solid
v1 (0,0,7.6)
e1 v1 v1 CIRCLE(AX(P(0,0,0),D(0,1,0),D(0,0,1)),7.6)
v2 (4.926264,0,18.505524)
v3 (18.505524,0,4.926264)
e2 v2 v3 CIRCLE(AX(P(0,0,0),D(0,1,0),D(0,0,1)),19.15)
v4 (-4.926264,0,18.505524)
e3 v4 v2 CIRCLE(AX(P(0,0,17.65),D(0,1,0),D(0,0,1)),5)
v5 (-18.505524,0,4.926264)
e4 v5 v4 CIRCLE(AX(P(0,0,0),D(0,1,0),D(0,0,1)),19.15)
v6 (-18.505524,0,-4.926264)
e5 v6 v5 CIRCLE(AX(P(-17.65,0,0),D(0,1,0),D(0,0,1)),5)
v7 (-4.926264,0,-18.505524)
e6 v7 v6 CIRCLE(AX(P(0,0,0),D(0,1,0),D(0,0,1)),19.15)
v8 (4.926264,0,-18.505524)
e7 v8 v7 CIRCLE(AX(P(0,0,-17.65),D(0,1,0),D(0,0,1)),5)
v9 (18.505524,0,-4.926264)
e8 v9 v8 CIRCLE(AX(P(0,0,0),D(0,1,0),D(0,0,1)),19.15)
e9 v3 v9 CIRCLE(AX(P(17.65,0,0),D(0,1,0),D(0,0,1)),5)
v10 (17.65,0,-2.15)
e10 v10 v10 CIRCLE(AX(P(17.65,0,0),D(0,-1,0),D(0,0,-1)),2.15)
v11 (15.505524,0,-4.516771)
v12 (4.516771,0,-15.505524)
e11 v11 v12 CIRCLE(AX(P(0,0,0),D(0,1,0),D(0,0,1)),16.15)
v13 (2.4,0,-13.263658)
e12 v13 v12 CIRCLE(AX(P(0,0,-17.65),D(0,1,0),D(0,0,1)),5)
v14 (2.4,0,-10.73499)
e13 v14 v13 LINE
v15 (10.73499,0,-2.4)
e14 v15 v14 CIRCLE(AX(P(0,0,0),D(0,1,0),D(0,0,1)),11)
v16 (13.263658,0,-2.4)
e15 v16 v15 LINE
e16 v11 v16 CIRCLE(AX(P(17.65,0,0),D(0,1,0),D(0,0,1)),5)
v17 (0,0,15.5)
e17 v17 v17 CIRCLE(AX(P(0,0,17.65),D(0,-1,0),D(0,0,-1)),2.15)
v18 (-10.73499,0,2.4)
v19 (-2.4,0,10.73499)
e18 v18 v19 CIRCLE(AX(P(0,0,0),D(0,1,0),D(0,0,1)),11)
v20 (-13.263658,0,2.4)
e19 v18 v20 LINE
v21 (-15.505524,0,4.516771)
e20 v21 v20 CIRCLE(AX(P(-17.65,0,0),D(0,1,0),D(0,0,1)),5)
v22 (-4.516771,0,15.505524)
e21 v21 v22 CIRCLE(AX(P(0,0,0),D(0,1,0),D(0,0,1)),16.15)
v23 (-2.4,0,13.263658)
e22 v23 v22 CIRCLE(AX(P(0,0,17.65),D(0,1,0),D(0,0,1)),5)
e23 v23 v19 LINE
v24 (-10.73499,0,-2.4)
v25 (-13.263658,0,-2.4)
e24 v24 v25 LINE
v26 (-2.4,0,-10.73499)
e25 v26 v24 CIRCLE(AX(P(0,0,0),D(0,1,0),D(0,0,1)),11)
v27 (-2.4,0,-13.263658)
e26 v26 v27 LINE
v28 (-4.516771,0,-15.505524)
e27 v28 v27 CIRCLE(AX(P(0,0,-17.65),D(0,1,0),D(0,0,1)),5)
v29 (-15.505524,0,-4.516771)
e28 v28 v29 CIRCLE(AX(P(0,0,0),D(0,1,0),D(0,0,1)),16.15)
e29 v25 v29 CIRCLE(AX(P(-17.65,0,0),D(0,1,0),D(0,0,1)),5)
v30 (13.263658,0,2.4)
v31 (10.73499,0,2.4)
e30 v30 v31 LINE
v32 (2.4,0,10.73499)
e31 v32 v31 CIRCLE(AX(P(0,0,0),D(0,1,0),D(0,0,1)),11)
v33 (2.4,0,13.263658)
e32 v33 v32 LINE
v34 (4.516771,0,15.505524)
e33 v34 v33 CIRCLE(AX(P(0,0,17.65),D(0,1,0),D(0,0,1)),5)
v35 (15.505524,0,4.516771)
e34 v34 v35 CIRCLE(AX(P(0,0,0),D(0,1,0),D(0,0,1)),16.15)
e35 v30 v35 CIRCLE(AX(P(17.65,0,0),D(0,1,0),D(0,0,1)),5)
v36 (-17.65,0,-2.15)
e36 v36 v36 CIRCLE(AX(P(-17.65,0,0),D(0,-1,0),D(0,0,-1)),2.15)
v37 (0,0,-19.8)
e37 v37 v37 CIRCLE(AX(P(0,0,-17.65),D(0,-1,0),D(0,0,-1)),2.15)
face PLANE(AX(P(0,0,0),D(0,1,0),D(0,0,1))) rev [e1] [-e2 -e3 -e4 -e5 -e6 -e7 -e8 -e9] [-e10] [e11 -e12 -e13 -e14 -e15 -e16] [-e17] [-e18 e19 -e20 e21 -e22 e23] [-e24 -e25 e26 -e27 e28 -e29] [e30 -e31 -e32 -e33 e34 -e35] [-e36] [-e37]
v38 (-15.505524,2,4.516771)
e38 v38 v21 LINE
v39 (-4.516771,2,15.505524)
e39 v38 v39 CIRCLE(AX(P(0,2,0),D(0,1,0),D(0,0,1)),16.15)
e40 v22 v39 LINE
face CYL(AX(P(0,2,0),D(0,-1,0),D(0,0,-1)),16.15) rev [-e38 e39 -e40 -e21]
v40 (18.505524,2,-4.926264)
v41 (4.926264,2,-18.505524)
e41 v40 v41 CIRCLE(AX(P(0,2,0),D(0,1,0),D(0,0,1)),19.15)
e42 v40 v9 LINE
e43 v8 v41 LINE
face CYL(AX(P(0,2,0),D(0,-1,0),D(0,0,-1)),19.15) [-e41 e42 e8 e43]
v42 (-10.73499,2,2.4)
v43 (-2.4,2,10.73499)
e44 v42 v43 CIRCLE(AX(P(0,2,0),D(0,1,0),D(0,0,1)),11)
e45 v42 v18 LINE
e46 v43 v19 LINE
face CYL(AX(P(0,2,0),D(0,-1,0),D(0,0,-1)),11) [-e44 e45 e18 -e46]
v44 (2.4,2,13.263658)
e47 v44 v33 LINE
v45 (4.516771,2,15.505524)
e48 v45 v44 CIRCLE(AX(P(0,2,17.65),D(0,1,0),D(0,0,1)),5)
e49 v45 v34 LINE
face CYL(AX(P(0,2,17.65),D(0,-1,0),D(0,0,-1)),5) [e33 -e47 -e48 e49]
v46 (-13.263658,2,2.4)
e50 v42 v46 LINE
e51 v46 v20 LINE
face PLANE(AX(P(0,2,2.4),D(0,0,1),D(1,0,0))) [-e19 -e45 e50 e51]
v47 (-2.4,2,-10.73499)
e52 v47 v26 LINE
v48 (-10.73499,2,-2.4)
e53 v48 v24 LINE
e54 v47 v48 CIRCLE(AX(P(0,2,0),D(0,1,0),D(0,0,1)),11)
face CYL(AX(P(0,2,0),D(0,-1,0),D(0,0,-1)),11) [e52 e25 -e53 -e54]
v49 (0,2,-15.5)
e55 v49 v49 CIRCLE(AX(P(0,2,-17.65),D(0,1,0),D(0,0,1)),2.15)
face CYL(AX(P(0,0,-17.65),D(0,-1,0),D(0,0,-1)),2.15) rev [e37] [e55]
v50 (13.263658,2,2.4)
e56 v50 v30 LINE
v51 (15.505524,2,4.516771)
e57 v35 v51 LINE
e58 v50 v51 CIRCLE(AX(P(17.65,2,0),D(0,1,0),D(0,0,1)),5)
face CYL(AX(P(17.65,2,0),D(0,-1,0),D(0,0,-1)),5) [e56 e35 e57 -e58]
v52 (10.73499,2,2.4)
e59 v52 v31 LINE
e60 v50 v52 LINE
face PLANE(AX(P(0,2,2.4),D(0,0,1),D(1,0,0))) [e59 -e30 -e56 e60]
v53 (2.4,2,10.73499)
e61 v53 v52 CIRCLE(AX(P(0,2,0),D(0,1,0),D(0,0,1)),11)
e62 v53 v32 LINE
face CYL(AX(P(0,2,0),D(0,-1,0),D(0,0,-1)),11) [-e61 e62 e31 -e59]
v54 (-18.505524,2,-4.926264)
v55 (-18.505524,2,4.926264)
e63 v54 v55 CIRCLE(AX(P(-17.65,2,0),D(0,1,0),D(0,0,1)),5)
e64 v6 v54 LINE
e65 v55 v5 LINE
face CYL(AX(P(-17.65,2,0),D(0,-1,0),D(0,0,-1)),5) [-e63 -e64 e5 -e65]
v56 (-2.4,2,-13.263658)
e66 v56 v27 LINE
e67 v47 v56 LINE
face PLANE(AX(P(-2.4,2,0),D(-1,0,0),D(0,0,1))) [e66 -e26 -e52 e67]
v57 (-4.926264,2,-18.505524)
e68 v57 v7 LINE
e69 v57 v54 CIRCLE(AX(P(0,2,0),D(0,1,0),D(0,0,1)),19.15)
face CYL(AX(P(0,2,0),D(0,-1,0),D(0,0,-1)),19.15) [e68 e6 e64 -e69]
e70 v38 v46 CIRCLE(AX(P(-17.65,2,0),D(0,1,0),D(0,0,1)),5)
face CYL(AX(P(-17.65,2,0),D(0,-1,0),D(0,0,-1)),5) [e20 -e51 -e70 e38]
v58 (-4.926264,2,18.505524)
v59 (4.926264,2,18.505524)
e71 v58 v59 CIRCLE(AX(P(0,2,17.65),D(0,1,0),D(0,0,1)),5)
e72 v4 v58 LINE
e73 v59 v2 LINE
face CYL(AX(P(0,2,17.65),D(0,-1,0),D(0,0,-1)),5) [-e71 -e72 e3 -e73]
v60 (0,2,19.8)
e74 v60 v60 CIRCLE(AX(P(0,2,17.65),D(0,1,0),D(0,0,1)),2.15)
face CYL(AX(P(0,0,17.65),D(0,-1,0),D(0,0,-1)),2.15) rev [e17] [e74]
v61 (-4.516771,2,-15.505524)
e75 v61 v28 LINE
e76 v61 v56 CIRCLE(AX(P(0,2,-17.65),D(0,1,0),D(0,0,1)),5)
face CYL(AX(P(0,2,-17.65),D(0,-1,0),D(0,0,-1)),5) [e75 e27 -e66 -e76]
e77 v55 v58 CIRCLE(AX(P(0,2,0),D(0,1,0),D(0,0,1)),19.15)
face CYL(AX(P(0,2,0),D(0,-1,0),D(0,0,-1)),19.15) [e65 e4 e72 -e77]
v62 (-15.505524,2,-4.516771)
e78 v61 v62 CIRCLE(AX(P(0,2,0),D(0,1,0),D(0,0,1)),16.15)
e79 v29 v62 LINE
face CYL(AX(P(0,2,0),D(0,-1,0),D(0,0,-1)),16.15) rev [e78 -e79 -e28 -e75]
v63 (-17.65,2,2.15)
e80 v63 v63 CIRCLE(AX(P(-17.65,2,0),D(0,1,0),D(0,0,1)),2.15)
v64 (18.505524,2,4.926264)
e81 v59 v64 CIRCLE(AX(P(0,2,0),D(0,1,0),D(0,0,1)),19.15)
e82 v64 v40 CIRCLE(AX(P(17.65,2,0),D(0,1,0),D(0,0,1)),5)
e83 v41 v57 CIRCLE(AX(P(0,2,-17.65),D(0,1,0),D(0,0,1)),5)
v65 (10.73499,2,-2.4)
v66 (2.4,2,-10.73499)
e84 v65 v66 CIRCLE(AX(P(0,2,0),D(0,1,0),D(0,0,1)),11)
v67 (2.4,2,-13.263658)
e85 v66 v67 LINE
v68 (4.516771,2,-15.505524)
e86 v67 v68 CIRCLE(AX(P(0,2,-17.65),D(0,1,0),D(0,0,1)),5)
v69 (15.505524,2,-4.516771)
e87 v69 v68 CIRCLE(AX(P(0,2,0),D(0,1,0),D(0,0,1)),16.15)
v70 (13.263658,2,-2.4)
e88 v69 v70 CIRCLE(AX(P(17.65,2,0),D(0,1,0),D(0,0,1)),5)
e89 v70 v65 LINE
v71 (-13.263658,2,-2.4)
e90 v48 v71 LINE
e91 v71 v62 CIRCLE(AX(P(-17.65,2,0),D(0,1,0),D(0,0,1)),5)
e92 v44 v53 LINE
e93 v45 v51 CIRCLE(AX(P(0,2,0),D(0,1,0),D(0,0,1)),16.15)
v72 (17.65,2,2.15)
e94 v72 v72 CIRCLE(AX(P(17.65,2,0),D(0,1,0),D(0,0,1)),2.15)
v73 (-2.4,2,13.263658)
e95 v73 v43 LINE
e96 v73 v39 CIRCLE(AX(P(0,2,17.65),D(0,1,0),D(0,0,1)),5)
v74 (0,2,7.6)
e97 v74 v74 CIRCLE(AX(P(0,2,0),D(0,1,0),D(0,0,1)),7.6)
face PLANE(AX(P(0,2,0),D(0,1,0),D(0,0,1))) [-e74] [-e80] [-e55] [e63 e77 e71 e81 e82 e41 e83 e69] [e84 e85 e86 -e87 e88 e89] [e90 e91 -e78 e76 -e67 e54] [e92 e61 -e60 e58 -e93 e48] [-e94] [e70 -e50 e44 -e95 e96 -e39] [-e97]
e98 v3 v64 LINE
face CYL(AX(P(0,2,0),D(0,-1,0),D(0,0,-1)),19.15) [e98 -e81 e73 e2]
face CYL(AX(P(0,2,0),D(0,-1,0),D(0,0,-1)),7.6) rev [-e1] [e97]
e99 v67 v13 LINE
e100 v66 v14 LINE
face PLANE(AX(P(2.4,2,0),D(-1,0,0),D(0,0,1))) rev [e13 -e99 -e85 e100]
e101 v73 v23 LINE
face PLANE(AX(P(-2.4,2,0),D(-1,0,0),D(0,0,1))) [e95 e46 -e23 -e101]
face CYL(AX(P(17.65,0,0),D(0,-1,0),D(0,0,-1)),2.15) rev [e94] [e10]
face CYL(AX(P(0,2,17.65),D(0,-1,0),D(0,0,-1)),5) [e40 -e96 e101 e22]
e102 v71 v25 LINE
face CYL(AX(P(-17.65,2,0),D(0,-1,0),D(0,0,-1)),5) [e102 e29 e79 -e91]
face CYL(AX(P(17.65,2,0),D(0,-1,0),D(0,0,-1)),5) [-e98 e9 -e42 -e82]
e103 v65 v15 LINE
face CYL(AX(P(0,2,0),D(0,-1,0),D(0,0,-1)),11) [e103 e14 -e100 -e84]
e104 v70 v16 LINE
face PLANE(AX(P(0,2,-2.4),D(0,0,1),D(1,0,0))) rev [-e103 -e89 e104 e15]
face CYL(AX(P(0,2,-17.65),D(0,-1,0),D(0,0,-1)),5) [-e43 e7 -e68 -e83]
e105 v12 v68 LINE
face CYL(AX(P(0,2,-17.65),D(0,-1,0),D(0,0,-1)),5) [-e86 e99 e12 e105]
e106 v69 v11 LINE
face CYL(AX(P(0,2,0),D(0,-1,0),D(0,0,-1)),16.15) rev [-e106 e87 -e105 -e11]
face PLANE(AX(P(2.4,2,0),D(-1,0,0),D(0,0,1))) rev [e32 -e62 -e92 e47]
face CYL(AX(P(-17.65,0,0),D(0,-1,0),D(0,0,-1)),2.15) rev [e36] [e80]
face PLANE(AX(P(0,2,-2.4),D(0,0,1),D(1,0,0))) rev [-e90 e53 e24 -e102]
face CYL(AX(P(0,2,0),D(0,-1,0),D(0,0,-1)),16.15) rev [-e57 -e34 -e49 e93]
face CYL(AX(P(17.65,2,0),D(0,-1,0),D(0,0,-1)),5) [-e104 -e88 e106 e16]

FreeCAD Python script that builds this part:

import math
import FreeCAD as App
import Part
import Sketcher

V = App.Vector

doc = App.newDocument("Part")
body = doc.addObject("PartDesign::Body", "Body")

sketch1 = doc.addObject("Sketcher::SketchObject", "Sketch")
body.addObject(sketch1)
sketch1.AttachmentSupport = (doc.XZ_Plane, [""])
sketch1.MapMode = "FlatFace"
sketch1.addGeometry(Part.ArcOfCircle(Part.Circle(V(0, 17.65, 0), V(0, 0, 1), 5), math.radians(9.852062), math.radians(170.147938)), False)
sketch1.addGeometry(Part.ArcOfCircle(Part.Circle(V(0, 0, 0), V(0, 0, 1), 19.15), math.radians(14.906722), math.radians(75.093278)), False)
sketch1.addGeometry(Part.ArcOfCircle(Part.Circle(V(17.65, 0, 0), V(0, 0, 1), 5), math.radians(-80.147938), math.radians(80.147938)), False)
sketch1.addGeometry(Part.ArcOfCircle(Part.Circle(V(0, 0, 0), V(0, 0, 1), 19.15), math.radians(-75.093278), math.radians(-14.906722)), False)
sketch1.addGeometry(Part.ArcOfCircle(Part.Circle(V(0, -17.65, 0), V(0, 0, 1), 5), math.radians(-170.147938), math.radians(-9.852062)), False)
sketch1.addGeometry(Part.ArcOfCircle(Part.Circle(V(0, 0, 0), V(0, 0, 1), 19.15), math.radians(-165.093278), math.radians(-104.906722)), False)
sketch1.addGeometry(Part.ArcOfCircle(Part.Circle(V(-17.65, 0, 0), V(0, 0, 1), 5), math.radians(99.852062), math.radians(260.147938)), False)
sketch1.addGeometry(Part.ArcOfCircle(Part.Circle(V(0, 0, 0), V(0, 0, 1), 19.15), math.radians(104.906722), math.radians(165.093278)), False)
sketch1.addGeometry(Part.ArcOfCircle(Part.Circle(V(0, 17.65, 0), V(0, 0, 1), 5), math.radians(-154.602534), math.radians(-118.685402)), False)
sketch1.addGeometry(Part.ArcOfCircle(Part.Circle(V(0, 0, 0), V(0, 0, 1), 16.15), math.radians(106.240883), math.radians(163.759117)), False)
sketch1.addGeometry(Part.ArcOfCircle(Part.Circle(V(-17.65, 0, 0), V(0, 0, 1), 5), math.radians(28.685402), math.radians(64.602534)), False)
sketch1.addGeometry(Part.LineSegment(V(-13.263658, 2.4, 0), V(-10.73499, 2.4, 0)), False)
sketch1.addGeometry(Part.ArcOfCircle(Part.Circle(V(0, 0, 0), V(0, 0, 1), 11), math.radians(102.602265), math.radians(167.397735)), False)
sketch1.addGeometry(Part.LineSegment(V(-2.4, 10.73499, 0), V(-2.4, 13.263658, 0)), False)
sketch1.addGeometry(Part.Circle(V(0, 0, 0), V(0, 0, 1), 7.6), False)
sketch1.addGeometry(Part.ArcOfCircle(Part.Circle(V(0, 0, 0), V(0, 0, 1), 16.15), math.radians(16.240883), math.radians(73.759117)), False)
sketch1.addGeometry(Part.ArcOfCircle(Part.Circle(V(0, 17.65, 0), V(0, 0, 1), 5), math.radians(-61.314598), math.radians(-25.397466)), False)
sketch1.addGeometry(Part.LineSegment(V(2.4, 13.263658, 0), V(2.4, 10.73499, 0)), False)
sketch1.addGeometry(Part.ArcOfCircle(Part.Circle(V(0, 0, 0), V(0, 0, 1), 11), math.radians(12.602265), math.radians(77.397735)), False)
sketch1.addGeometry(Part.LineSegment(V(10.73499, 2.4, 0), V(13.263658, 2.4, 0)), False)
sketch1.addGeometry(Part.ArcOfCircle(Part.Circle(V(17.65, 0, 0), V(0, 0, 1), 5), math.radians(115.397466), math.radians(151.314598)), False)
sketch1.addGeometry(Part.ArcOfCircle(Part.Circle(V(0, 0, 0), V(0, 0, 1), 11), math.radians(-167.397735), math.radians(-102.602265)), False)
sketch1.addGeometry(Part.LineSegment(V(-10.73499, -2.4, 0), V(-13.263658, -2.4, 0)), False)
sketch1.addGeometry(Part.ArcOfCircle(Part.Circle(V(-17.65, 0, 0), V(0, 0, 1), 5), math.radians(-64.602534), math.radians(-28.685402)), False)
sketch1.addGeometry(Part.ArcOfCircle(Part.Circle(V(0, 0, 0), V(0, 0, 1), 16.15), math.radians(-163.759117), math.radians(-106.240883)), False)
sketch1.addGeometry(Part.ArcOfCircle(Part.Circle(V(0, -17.65, 0), V(0, 0, 1), 5), math.radians(118.685402), math.radians(154.602534)), False)
sketch1.addGeometry(Part.LineSegment(V(-2.4, -13.263658, 0), V(-2.4, -10.73499, 0)), False)
sketch1.addGeometry(Part.ArcOfCircle(Part.Circle(V(0, 0, 0), V(0, 0, 1), 11), math.radians(-77.397735), math.radians(-12.602265)), False)
sketch1.addGeometry(Part.LineSegment(V(2.4, -10.73499, 0), V(2.4, -13.263658, 0)), False)
sketch1.addGeometry(Part.ArcOfCircle(Part.Circle(V(0, -17.65, 0), V(0, 0, 1), 5), math.radians(25.397466), math.radians(61.314598)), False)
sketch1.addGeometry(Part.ArcOfCircle(Part.Circle(V(0, 0, 0), V(0, 0, 1), 16.15), math.radians(-73.759117), math.radians(-16.240883)), False)
sketch1.addGeometry(Part.ArcOfCircle(Part.Circle(V(17.65, 0, 0), V(0, 0, 1), 5), math.radians(-151.314598), math.radians(-115.397466)), False)
sketch1.addGeometry(Part.LineSegment(V(13.263658, -2.4, 0), V(10.73499, -2.4, 0)), False)
sketch1.addConstraint(Sketcher.Constraint("Coincident", 0, 1, 1, 2))
sketch1.addConstraint(Sketcher.Constraint("Coincident", 1, 1, 2, 2))
sketch1.addConstraint(Sketcher.Constraint("Coincident", 2, 1, 3, 2))
sketch1.addConstraint(Sketcher.Constraint("Coincident", 3, 1, 4, 2))
sketch1.addConstraint(Sketcher.Constraint("Coincident", 4, 1, 5, 2))
sketch1.addConstraint(Sketcher.Constraint("Coincident", 5, 1, 6, 2))
sketch1.addConstraint(Sketcher.Constraint("Coincident", 6, 1, 7, 2))
sketch1.addConstraint(Sketcher.Constraint("Coincident", 7, 1, 0, 2))
sketch1.addConstraint(Sketcher.Constraint("Coincident", 8, 1, 9, 1))
sketch1.addConstraint(Sketcher.Constraint("Coincident", 9, 2, 10, 2))
sketch1.addConstraint(Sketcher.Constraint("Coincident", 10, 1, 11, 1))
sketch1.addConstraint(Sketcher.Constraint("Coincident", 11, 2, 12, 2))
sketch1.addConstraint(Sketcher.Constraint("Coincident", 12, 1, 13, 1))
sketch1.addConstraint(Sketcher.Constraint("Coincident", 13, 2, 8, 2))
sketch1.addConstraint(Sketcher.Constraint("Coincident", 15, 2, 16, 2))
sketch1.addConstraint(Sketcher.Constraint("Coincident", 16, 1, 17, 1))
sketch1.addConstraint(Sketcher.Constraint("Coincident", 17, 2, 18, 2))
sketch1.addConstraint(Sketcher.Constraint("Coincident", 18, 1, 19, 1))
sketch1.addConstraint(Sketcher.Constraint("Coincident", 19, 2, 20, 2))
sketch1.addConstraint(Sketcher.Constraint("Coincident", 20, 1, 15, 1))
sketch1.addConstraint(Sketcher.Constraint("Coincident", 21, 1, 22, 1))
sketch1.addConstraint(Sketcher.Constraint("Coincident", 22, 2, 23, 2))
sketch1.addConstraint(Sketcher.Constraint("Coincident", 23, 1, 24, 1))
sketch1.addConstraint(Sketcher.Constraint("Coincident", 24, 2, 25, 2))
sketch1.addConstraint(Sketcher.Constraint("Coincident", 25, 1, 26, 1))
sketch1.addConstraint(Sketcher.Constraint("Coincident", 26, 2, 21, 2))
sketch1.addConstraint(Sketcher.Constraint("Coincident", 27, 1, 28, 1))
sketch1.addConstraint(Sketcher.Constraint("Coincident", 28, 2, 29, 2))
sketch1.addConstraint(Sketcher.Constraint("Coincident", 29, 1, 30, 1))
sketch1.addConstraint(Sketcher.Constraint("Coincident", 30, 2, 31, 2))
sketch1.addConstraint(Sketcher.Constraint("Coincident", 31, 1, 32, 1))
sketch1.addConstraint(Sketcher.Constraint("Coincident", 32, 2, 27, 2))
sketch1.addConstraint(Sketcher.Constraint("Horizontal", 11))
sketch1.addConstraint(Sketcher.Constraint("Vertical", 13))
sketch1.addConstraint(Sketcher.Constraint("Vertical", 17))
sketch1.addConstraint(Sketcher.Constraint("Horizontal", 19))
sketch1.addConstraint(Sketcher.Constraint("Horizontal", 22))
sketch1.addConstraint(Sketcher.Constraint("Vertical", 26))
sketch1.addConstraint(Sketcher.Constraint("Vertical", 28))
sketch1.addConstraint(Sketcher.Constraint("Horizontal", 32))
sketch1.addConstraint(Sketcher.Constraint("Coincident", 1, 3, -1, 1))
sketch1.addConstraint(Sketcher.Constraint("Coincident", 3, 3, -1, 1))
sketch1.addConstraint(Sketcher.Constraint("Coincident", 5, 3, -1, 1))
sketch1.addConstraint(Sketcher.Constraint("Coincident", 7, 3, -1, 1))
sketch1.addConstraint(Sketcher.Constraint("Coincident", 9, 3, -1, 1))
sketch1.addConstraint(Sketcher.Constraint("Coincident", 12, 3, -1, 1))
sketch1.addConstraint(Sketcher.Constraint("Coincident", 14, 3, -1, 1))
sketch1.addConstraint(Sketcher.Constraint("Coincident", 15, 3, -1, 1))
sketch1.addConstraint(Sketcher.Constraint("Coincident", 18, 3, -1, 1))
sketch1.addConstraint(Sketcher.Constraint("Coincident", 21, 3, -1, 1))
sketch1.addConstraint(Sketcher.Constraint("Coincident", 24, 3, -1, 1))
sketch1.addConstraint(Sketcher.Constraint("Coincident", 27, 3, -1, 1))
sketch1.addConstraint(Sketcher.Constraint("Coincident", 30, 3, -1, 1))
sketch1.addConstraint(Sketcher.Constraint("Coincident", 8, 3, 0, 3))
sketch1.addConstraint(Sketcher.Constraint("Coincident", 10, 3, 6, 3))
sketch1.addConstraint(Sketcher.Constraint("Coincident", 16, 3, 0, 3))
sketch1.addConstraint(Sketcher.Constraint("Coincident", 20, 3, 2, 3))
sketch1.addConstraint(Sketcher.Constraint("Coincident", 23, 3, 6, 3))
sketch1.addConstraint(Sketcher.Constraint("Coincident", 25, 3, 4, 3))
sketch1.addConstraint(Sketcher.Constraint("Coincident", 29, 3, 4, 3))
sketch1.addConstraint(Sketcher.Constraint("Coincident", 31, 3, 2, 3))
sketch1.addConstraint(Sketcher.Constraint("Equal", 0, 2))
sketch1.addConstraint(Sketcher.Constraint("Equal", 1, 3))
sketch1.addConstraint(Sketcher.Constraint("Equal", 2, 4))
sketch1.addConstraint(Sketcher.Constraint("Equal", 3, 5))
sketch1.addConstraint(Sketcher.Constraint("Equal", 4, 6))
sketch1.addConstraint(Sketcher.Constraint("Equal", 5, 7))
sketch1.addConstraint(Sketcher.Constraint("Equal", 6, 8))
sketch1.addConstraint(Sketcher.Constraint("Equal", 8, 10))
sketch1.addConstraint(Sketcher.Constraint("Equal", 9, 15))
sketch1.addConstraint(Sketcher.Constraint("Equal", 10, 16))
sketch1.addConstraint(Sketcher.Constraint("Equal", 12, 18))
sketch1.addConstraint(Sketcher.Constraint("Equal", 16, 20))
sketch1.addConstraint(Sketcher.Constraint("Equal", 18, 21))
sketch1.addConstraint(Sketcher.Constraint("Equal", 20, 23))
sketch1.addConstraint(Sketcher.Constraint("Equal", 15, 24))
sketch1.addConstraint(Sketcher.Constraint("Equal", 23, 25))
sketch1.addConstraint(Sketcher.Constraint("Equal", 21, 27))
sketch1.addConstraint(Sketcher.Constraint("Equal", 25, 29))
sketch1.addConstraint(Sketcher.Constraint("Equal", 24, 30))
sketch1.addConstraint(Sketcher.Constraint("Equal", 29, 31))
sketch1.addConstraint(Sketcher.Constraint("Symmetric", 0, 3, 4, 3, -1, 1))
sketch1.addConstraint(Sketcher.Constraint("Symmetric", 2, 3, 6, 3, -1, 1))
sketch1.addConstraint(Sketcher.Constraint("Symmetric", 13, 2, 16, 1, -2))
sketch1.addConstraint(Sketcher.Constraint("Symmetric", 10, 1, 19, 2, -2))
sketch1.addConstraint(Sketcher.Constraint("Horizontal", 26, 2, 27, 1))
sketch1.addConstraint(Sketcher.Constraint("Horizontal", 22, 2, 31, 1))
sketch1.addConstraint(Sketcher.Constraint("Vertical", 11, 2, 21, 1))
sketch1.addConstraint(Sketcher.Constraint("Vertical", 13, 2, 25, 1))
sketch1.addConstraint(Sketcher.Constraint("Equal", 32, 13))
sketch1.addConstraint(Sketcher.Constraint("Radius", 0, 5.0))
sketch1.addConstraint(Sketcher.Constraint("Radius", 12, 11.0))
sketch1.addConstraint(Sketcher.Constraint("Diameter", 14, 15.2))
sketch1.addConstraint(Sketcher.Constraint("Radius", 1, 19.15))
sketch1.addConstraint(Sketcher.Constraint("Radius", 9, 16.15))
sketch1.addConstraint(Sketcher.Constraint("DistanceY", 8, 1, 7, 1, 3.0))
sketch1.addConstraint(Sketcher.Constraint("DistanceX", 6, 1, 9, 2, 3.0))
sketch1.addConstraint(Sketcher.Constraint("DistanceY", -1, 1, 10, 1, 2.4))
pad1 = doc.addObject("PartDesign::Pad", "Pad")
body.addObject(pad1)
pad1.Profile = sketch1
pad1.Length = 2
pad1.Reversed = True

sketch2 = doc.addObject("Sketcher::SketchObject", "Sketch001")
body.addObject(sketch2)
sketch2.AttachmentSupport = (doc.XZ_Plane, [""])
sketch2.MapMode = "FlatFace"
sketch2.addGeometry(Part.Circle(V(17.65, 0, 0), V(0, 0, 1), 2.15), False)
sketch2.addGeometry(Part.Circle(V(0, -17.65, 0), V(0, 0, 1), 2.15), False)
sketch2.addGeometry(Part.Circle(V(-17.65, 0, 0), V(0, 0, 1), 2.15), False)
sketch2.addGeometry(Part.Circle(V(0, 17.65, 0), V(0, 0, 1), 2.15), False)
sketch2.addConstraint(Sketcher.Constraint("Equal", 0, 1))
sketch2.addConstraint(Sketcher.Constraint("Equal", 1, 2))
sketch2.addConstraint(Sketcher.Constraint("Equal", 2, 3))
sketch2.addConstraint(Sketcher.Constraint("Symmetric", 0, 3, 2, 3, -1, 1))
sketch2.addConstraint(Sketcher.Constraint("Symmetric", 1, 3, 3, 3, -1, 1))
sketch2.addConstraint(Sketcher.Constraint("PointOnObject", 0, 3, -1))
sketch2.addConstraint(Sketcher.Constraint("PointOnObject", 1, 3, -2))
sketch2.addConstraint(Sketcher.Constraint("Diameter", 0, 4.3))
sketch2.addConstraint(Sketcher.Constraint("DistanceX", 2, 3, 0, 3, 35.3))
sketch2.addConstraint(Sketcher.Constraint("DistanceY", 1, 3, 3, 3, 35.3))
doc.recompute()
hole = doc.addObject("PartDesign::Hole", "Hole")
body.addObject(hole)
hole.Profile = sketch2
hole.ThreadType = "None"
hole.Diameter = 4.3
hole.DepthType = "Dimension"
hole.Depth = 8
hole.DrillPoint = "Angled"
hole.DrillPointAngle = 118

doc.recompute()
